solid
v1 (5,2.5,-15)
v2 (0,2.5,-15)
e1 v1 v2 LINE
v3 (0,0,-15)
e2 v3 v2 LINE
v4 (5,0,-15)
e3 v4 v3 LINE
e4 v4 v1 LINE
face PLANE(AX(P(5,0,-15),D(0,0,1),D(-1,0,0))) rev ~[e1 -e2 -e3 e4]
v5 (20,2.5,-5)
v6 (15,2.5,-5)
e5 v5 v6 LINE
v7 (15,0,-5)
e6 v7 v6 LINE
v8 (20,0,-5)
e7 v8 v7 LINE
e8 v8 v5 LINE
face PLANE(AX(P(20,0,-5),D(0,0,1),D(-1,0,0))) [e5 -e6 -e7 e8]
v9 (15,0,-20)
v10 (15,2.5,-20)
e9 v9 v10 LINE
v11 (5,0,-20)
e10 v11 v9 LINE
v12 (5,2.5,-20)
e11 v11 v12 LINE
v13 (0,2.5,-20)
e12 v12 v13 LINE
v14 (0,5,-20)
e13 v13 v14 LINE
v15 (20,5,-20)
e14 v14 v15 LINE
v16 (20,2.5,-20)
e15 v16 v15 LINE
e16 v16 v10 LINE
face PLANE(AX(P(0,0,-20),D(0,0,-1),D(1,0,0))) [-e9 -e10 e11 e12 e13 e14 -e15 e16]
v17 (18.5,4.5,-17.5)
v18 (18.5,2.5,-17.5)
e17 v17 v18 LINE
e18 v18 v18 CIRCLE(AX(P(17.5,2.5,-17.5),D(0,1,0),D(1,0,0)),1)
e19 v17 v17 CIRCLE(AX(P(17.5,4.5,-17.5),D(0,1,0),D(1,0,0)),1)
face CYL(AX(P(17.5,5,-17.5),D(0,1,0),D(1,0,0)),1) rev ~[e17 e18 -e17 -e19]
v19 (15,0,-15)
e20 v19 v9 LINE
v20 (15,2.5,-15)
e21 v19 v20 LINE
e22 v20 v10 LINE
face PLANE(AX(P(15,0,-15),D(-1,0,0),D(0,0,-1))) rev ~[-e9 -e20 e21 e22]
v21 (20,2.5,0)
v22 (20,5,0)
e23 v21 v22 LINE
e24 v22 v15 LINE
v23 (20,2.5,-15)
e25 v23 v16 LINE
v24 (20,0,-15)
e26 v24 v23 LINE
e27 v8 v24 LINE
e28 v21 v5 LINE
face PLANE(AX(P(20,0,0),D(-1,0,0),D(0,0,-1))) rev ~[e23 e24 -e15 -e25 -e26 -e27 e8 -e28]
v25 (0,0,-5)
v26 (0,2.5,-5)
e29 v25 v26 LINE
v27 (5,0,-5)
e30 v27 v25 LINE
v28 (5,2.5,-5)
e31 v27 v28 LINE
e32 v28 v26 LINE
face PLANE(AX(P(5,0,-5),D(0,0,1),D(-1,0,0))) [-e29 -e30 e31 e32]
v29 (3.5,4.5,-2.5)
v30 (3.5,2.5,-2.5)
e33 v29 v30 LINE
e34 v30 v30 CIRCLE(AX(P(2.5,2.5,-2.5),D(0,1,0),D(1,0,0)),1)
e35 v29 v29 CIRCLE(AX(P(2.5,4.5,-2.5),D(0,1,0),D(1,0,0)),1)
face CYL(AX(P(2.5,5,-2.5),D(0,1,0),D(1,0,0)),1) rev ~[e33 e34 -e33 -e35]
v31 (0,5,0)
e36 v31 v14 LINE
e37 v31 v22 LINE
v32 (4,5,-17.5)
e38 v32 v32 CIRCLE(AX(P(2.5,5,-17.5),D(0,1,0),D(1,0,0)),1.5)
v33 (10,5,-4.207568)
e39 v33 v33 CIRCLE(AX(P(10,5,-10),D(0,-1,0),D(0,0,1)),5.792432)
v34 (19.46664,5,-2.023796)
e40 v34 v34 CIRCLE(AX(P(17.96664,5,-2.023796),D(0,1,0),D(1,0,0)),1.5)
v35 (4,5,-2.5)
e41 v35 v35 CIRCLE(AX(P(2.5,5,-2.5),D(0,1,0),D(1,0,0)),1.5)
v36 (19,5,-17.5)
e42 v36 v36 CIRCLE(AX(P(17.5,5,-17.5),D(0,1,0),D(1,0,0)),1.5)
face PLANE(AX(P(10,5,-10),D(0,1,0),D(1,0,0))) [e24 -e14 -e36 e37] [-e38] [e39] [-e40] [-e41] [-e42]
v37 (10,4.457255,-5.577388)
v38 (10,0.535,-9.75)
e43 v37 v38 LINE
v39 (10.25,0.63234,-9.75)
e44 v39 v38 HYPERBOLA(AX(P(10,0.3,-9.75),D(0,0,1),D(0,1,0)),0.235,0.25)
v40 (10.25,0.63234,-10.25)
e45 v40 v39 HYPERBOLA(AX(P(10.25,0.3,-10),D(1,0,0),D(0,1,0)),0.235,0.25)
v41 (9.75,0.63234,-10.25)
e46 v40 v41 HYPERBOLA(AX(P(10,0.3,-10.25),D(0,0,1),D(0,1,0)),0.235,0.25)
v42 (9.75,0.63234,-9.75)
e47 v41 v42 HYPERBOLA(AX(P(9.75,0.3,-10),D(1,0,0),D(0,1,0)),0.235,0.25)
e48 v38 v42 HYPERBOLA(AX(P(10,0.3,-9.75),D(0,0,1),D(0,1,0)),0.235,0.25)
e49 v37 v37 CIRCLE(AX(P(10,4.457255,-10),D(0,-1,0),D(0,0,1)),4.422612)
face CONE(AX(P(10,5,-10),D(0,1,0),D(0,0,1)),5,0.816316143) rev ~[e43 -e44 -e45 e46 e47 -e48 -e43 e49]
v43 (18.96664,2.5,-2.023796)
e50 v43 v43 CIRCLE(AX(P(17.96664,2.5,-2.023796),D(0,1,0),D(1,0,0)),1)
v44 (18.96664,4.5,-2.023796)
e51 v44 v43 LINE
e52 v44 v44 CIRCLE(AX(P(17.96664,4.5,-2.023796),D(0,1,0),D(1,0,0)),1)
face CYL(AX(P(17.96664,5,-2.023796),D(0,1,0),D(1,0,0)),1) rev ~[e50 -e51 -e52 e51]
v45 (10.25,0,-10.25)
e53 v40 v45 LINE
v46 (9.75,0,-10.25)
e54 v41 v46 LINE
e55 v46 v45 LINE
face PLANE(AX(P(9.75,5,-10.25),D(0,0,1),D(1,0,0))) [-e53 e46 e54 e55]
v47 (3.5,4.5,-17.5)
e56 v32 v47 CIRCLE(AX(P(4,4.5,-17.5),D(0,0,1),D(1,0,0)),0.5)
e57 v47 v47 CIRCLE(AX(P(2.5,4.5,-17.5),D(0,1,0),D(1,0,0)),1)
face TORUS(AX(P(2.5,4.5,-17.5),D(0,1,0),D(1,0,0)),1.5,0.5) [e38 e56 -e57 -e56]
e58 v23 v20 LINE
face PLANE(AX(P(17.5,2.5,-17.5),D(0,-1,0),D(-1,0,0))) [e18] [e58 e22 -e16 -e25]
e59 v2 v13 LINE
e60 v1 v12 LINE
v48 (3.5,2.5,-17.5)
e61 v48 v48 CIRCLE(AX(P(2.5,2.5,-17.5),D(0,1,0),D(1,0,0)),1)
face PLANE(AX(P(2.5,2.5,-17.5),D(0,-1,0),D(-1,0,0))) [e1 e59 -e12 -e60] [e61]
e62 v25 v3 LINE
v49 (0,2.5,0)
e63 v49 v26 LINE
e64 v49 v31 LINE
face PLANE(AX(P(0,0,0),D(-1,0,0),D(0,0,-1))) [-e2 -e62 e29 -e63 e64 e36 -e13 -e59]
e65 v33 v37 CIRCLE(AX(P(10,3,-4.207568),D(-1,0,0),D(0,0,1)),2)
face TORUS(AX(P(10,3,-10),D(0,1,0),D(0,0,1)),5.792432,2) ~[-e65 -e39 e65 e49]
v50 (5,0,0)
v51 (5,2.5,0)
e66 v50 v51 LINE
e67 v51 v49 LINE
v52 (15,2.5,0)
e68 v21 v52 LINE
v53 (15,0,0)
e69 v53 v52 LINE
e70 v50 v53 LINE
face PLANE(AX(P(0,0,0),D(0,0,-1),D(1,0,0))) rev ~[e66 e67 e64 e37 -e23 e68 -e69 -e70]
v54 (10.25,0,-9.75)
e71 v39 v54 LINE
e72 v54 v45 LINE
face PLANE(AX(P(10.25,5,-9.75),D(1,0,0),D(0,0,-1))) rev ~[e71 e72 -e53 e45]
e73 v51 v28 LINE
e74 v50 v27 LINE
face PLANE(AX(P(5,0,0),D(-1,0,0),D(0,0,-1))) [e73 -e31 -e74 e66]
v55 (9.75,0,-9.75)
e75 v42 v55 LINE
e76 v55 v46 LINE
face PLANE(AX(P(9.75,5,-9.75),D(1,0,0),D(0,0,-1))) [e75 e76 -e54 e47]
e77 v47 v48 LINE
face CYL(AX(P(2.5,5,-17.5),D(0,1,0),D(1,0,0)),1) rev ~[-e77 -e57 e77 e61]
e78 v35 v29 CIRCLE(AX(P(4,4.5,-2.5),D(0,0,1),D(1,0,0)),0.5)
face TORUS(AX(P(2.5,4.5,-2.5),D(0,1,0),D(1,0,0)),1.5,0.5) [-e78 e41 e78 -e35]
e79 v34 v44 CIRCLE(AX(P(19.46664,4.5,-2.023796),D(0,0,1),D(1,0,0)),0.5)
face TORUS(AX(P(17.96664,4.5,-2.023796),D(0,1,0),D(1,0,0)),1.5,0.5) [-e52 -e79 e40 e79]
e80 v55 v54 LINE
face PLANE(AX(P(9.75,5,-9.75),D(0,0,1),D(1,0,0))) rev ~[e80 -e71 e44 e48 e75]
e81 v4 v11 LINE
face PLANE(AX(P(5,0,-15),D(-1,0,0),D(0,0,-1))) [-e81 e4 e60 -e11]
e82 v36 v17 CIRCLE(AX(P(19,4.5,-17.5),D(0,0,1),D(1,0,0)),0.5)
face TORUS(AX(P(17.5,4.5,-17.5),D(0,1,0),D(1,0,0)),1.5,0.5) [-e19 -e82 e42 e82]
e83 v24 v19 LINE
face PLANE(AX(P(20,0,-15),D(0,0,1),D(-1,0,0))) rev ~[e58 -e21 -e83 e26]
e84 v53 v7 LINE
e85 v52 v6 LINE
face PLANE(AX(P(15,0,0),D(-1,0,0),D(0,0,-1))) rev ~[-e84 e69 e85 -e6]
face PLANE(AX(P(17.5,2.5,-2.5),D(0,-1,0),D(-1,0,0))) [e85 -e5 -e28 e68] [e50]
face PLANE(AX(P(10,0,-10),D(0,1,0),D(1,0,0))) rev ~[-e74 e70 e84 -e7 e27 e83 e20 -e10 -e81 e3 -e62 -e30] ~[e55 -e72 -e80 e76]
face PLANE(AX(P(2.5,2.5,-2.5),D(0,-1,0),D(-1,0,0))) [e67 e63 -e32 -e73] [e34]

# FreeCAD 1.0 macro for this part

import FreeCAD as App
import Part
import Sketcher
from FreeCAD import Vector


def edges_at(feature, points):
    """Names of the edges that pass closest to the given points."""
    edges = feature.Shape.Edges
    near = lambda p: min(range(len(edges)), key=lambda i: edges[i].distToShape(Part.Vertex(*p))[0])
    return sorted({f"Edge{near(p) + 1}" for p in points})

doc = App.newDocument("Part")
body = doc.addObject("PartDesign::Body", "Body")

# Sketch on XZ plane
sketch1 = body.newObject("Sketcher::SketchObject", "Sketch")
sketch1.AttachmentSupport = (doc.getObject("XZ_Plane"), [""])
sketch1.MapMode = "FlatFace"
sketch1.addGeometry(Part.LineSegment(Vector(0, -20, 0), Vector(0, 0, 0)), False)
sketch1.addGeometry(Part.LineSegment(Vector(0, 0, 0), Vector(20, 0, 0)), False)
sketch1.addGeometry(Part.LineSegment(Vector(20, 0, 0), Vector(20, -20, 0)), False)
sketch1.addGeometry(Part.LineSegment(Vector(20, -20, 0), Vector(0, -20, 0)), False)
sketch1.addConstraint(Sketcher.Constraint("Coincident", 0, 2, 1, 1))
sketch1.addConstraint(Sketcher.Constraint("Coincident", 1, 2, 2, 1))
sketch1.addConstraint(Sketcher.Constraint("Coincident", 2, 2, 3, 1))
sketch1.addConstraint(Sketcher.Constraint("Coincident", 3, 2, 0, 1))
sketch1.addConstraint(Sketcher.Constraint("Vertical", 0))
sketch1.addConstraint(Sketcher.Constraint("Horizontal", 1))
sketch1.addConstraint(Sketcher.Constraint("Vertical", 2))
sketch1.addConstraint(Sketcher.Constraint("Horizontal", 3))
sketch1.addConstraint(Sketcher.Constraint("Coincident", 0, 2, -1, 1))
sketch1.addConstraint(Sketcher.Constraint("Equal", 3, 0))
sketch1.addConstraint(Sketcher.Constraint("DistanceX", 1, 1, 1, 2, 20.0))
pad1 = body.newObject("PartDesign::Pad", "Pad")
pad1.Profile = sketch1
pad1.Length = 5
pad1.Reversed = True

# Sketch on YZ plane
sketch2 = body.newObject("Sketcher::SketchObject", "Sketch001")
sketch2.AttachmentSupport = (doc.getObject("YZ_Plane"), [""])
sketch2.MapMode = "FlatFace"
sketch2.AttachmentOffset = App.Placement(Vector(0, 0, 10), App.Rotation())
sketch2.addGeometry(Part.LineSegment(Vector(0.3, -10, 0), Vector(5, -10, 0)), False)
sketch2.addGeometry(Part.LineSegment(Vector(5, -10, 0), Vector(5, -5, 0)), False)
sketch2.addGeometry(Part.LineSegment(Vector(5, -5, 0), Vector(0.3, -10, 0)), False)
sketch2.addGeometry(Part.LineSegment(Vector(5, -10, 0), Vector(0.3, -10, 0)), True)  # axis
sketch2.addConstraint(Sketcher.Constraint("Coincident", 0, 2, 1, 1))
sketch2.addConstraint(Sketcher.Constraint("Coincident", 1, 2, 2, 1))
sketch2.addConstraint(Sketcher.Constraint("Coincident", 2, 2, 0, 1))
sketch2.addConstraint(Sketcher.Constraint("Horizontal", 0))
sketch2.addConstraint(Sketcher.Constraint("Vertical", 1))
sketch2.addConstraint(Sketcher.Constraint("Horizontal", 3))
sketch2.addConstraint(Sketcher.Constraint("Coincident", 3, 1, 0, 2))
sketch2.addConstraint(Sketcher.Constraint("Equal", 0, 3))
sketch2.addConstraint(Sketcher.Constraint("DistanceY", 1, 1, 1, 2, 5.0))
sketch2.addConstraint(Sketcher.Constraint("DistanceX", 0, 1, 0, 2, 4.7))
sketch2.addConstraint(Sketcher.Constraint("DistanceX", -1, 1, 0, 2, 5.0))
sketch2.addConstraint(Sketcher.Constraint("DistanceY", 0, 2, -1, 1, 10.0))
groove = body.newObject("PartDesign::Groove", "Groove")
groove.Profile = sketch2
groove.ReferenceAxis = (sketch2, ["Axis0"])
groove.Angle = 360

# Sketch on XZ plane
sketch3 = body.newObject("Sketcher::SketchObject", "Sketch002")
sketch3.AttachmentSupport = (doc.getObject("XZ_Plane"), [""])
sketch3.MapMode = "FlatFace"
sketch3.AttachmentOffset = App.Placement(Vector(0, 0, -5), App.Rotation())
sketch3.addGeometry(Part.LineSegment(Vector(9.75, -10.25, 0), Vector(9.75, -9.75, 0)), False)
sketch3.addGeometry(Part.LineSegment(Vector(9.75, -9.75, 0), Vector(10.25, -9.75, 0)), False)
sketch3.addGeometry(Part.LineSegment(Vector(10.25, -9.75, 0), Vector(10.25, -10.25, 0)), False)
sketch3.addGeometry(Part.LineSegment(Vector(10.25, -10.25, 0), Vector(9.75, -10.25, 0)), False)
sketch3.addConstraint(Sketcher.Constraint("Coincident", 0, 2, 1, 1))
sketch3.addConstraint(Sketcher.Constraint("Coincident", 1, 2, 2, 1))
sketch3.addConstraint(Sketcher.Constraint("Coincident", 2, 2, 3, 1))
sketch3.addConstraint(Sketcher.Constraint("Coincident", 3, 2, 0, 1))
sketch3.addConstraint(Sketcher.Constraint("Vertical", 0))
sketch3.addConstraint(Sketcher.Constraint("Horizontal", 1))
sketch3.addConstraint(Sketcher.Constraint("Vertical", 2))
sketch3.addConstraint(Sketcher.Constraint("Horizontal", 3))
sketch3.addConstraint(Sketcher.Constraint("Equal", 3, 0))
sketch3.addConstraint(Sketcher.Constraint("DistanceX", 1, 1, 1, 2, 0.5))
sketch3.addConstraint(Sketcher.Constraint("DistanceX", -1, 1, 0, 2, 9.75))
sketch3.addConstraint(Sketcher.Constraint("DistanceY", 0, 2, -1, 1, 9.75))
pocket1 = body.newObject("PartDesign::Pocket", "Pocket")
pocket1.Profile = sketch3
pocket1.Length = 7
pocket1.Reversed = True
doc.recompute()

fillet = body.newObject("PartDesign::Fillet", "Fillet")
fillet.Base = (pocket1, edges_at(pocket1, [(10, 5, -15)]))
fillet.Radius = 2

# Sketch on XZ plane
sketch4 = body.newObject("Sketcher::SketchObject", "Sketch003")
sketch4.AttachmentSupport = (doc.getObject("XZ_Plane"), [""])
sketch4.MapMode = "FlatFace"
sketch4.addGeometry(Part.LineSegment(Vector(20, -20, 0), Vector(20, -15, 0)), False)
sketch4.addGeometry(Part.LineSegment(Vector(20, -15, 0), Vector(15, -15, 0)), False)
sketch4.addGeometry(Part.LineSegment(Vector(15, -15, 0), Vector(15, -20, 0)), False)
sketch4.addGeometry(Part.LineSegment(Vector(15, -20, 0), Vector(20, -20, 0)), False)
sketch4.addGeometry(Part.LineSegment(Vector(5, -20, 0), Vector(5, -15, 0)), False)
sketch4.addGeometry(Part.LineSegment(Vector(5, -15, 0), Vector(0, -15, 0)), False)
sketch4.addGeometry(Part.LineSegment(Vector(0, -15, 0), Vector(0, -20, 0)), False)
sketch4.addGeometry(Part.LineSegment(Vector(0, -20, 0), Vector(5, -20, 0)), False)
sketch4.addGeometry(Part.LineSegment(Vector(20, -5, 0), Vector(20, 0, 0)), False)
sketch4.addGeometry(Part.LineSegment(Vector(20, 0, 0), Vector(15, 0, 0)), False)
sketch4.addGeometry(Part.LineSegment(Vector(15, 0, 0), Vector(15, -5, 0)), False)
sketch4.addGeometry(Part.LineSegment(Vector(15, -5, 0), Vector(20, -5, 0)), False)
sketch4.addGeometry(Part.LineSegment(Vector(5, -5, 0), Vector(5, 0, 0)), False)
sketch4.addGeometry(Part.LineSegment(Vector(5, 0, 0), Vector(0, 0, 0)), False)
sketch4.addGeometry(Part.LineSegment(Vector(0, 0, 0), Vector(0, -5, 0)), False)
sketch4.addGeometry(Part.LineSegment(Vector(0, -5, 0), Vector(5, -5, 0)), False)
sketch4.addConstraint(Sketcher.Constraint("Coincident", 0, 2, 1, 1))
sketch4.addConstraint(Sketcher.Constraint("Coincident", 1, 2, 2, 1))
sketch4.addConstraint(Sketcher.Constraint("Coincident", 2, 2, 3, 1))
sketch4.addConstraint(Sketcher.Constraint("Coincident", 3, 2, 0, 1))
sketch4.addConstraint(Sketcher.Constraint("Coincident", 4, 2, 5, 1))
sketch4.addConstraint(Sketcher.Constraint("Coincident", 5, 2, 6, 1))
sketch4.addConstraint(Sketcher.Constraint("Coincident", 6, 2, 7, 1))
sketch4.addConstraint(Sketcher.Constraint("Coincident", 7, 2, 4, 1))
sketch4.addConstraint(Sketcher.Constraint("Coincident", 8, 2, 9, 1))
sketch4.addConstraint(Sketcher.Constraint("Coincident", 9, 2, 10, 1))
sketch4.addConstraint(Sketcher.Constraint("Coincident", 10, 2, 11, 1))
sketch4.addConstraint(Sketcher.Constraint("Coincident", 11, 2, 8, 1))
sketch4.addConstraint(Sketcher.Constraint("Coincident", 12, 2, 13, 1))
sketch4.addConstraint(Sketcher.Constraint("Coincident", 13, 2, 14, 1))
sketch4.addConstraint(Sketcher.Constraint("Coincident", 14, 2, 15, 1))
sketch4.addConstraint(Sketcher.Constraint("Coincident", 15, 2, 12, 1))
sketch4.addConstraint(Sketcher.Constraint("Vertical", 0))
sketch4.addConstraint(Sketcher.Constraint("Horizontal", 1))
sketch4.addConstraint(Sketcher.Constraint("Vertical", 2))
sketch4.addConstraint(Sketcher.Constraint("Horizontal", 3))
sketch4.addConstraint(Sketcher.Constraint("Vertical", 4))
sketch4.addConstraint(Sketcher.Constraint("Horizontal", 5))
sketch4.addConstraint(Sketcher.Constraint("Vertical", 6))
sketch4.addConstraint(Sketcher.Constraint("Horizontal", 7))
sketch4.addConstraint(Sketcher.Constraint("Vertical", 8))
sketch4.addConstraint(Sketcher.Constraint("Horizontal", 9))
sketch4.addConstraint(Sketcher.Constraint("Vertical", 10))
sketch4.addConstraint(Sketcher.Constraint("Horizontal", 11))
sketch4.addConstraint(Sketcher.Constraint("Vertical", 12))
sketch4.addConstraint(Sketcher.Constraint("Horizontal", 13))
sketch4.addConstraint(Sketcher.Constraint("Vertical", 14))
sketch4.addConstraint(Sketcher.Constraint("Horizontal", 15))
sketch4.addConstraint(Sketcher.Constraint("Coincident", 13, 2, -1, 1))
sketch4.addConstraint(Sketcher.Constraint("PointOnObject", 5, 2, -2))
sketch4.addConstraint(Sketcher.Constraint("PointOnObject", 8, 2, -1))
sketch4.addConstraint(Sketcher.Constraint("Horizontal", 1, 2, 4, 2))
sketch4.addConstraint(Sketcher.Constraint("Horizontal", 3, 2, 6, 2))
sketch4.addConstraint(Sketcher.Constraint("Horizontal", 11, 2, 14, 2))
sketch4.addConstraint(Sketcher.Constraint("Vertical", 3, 2, 8, 2))
sketch4.addConstraint(Sketcher.Constraint("Vertical", 2, 2, 9, 2))
sketch4.addConstraint(Sketcher.Constraint("Vertical", 7, 2, 12, 2))
sketch4.addConstraint(Sketcher.Constraint("Equal", 3, 5))
sketch4.addConstraint(Sketcher.Constraint("Equal", 15, 0))
sketch4.addConstraint(Sketcher.Constraint("Equal", 6, 8))
sketch4.addConstraint(Sketcher.Constraint("DistanceX", 1, 2, 1, 1, 5.0))
sketch4.addConstraint(Sketcher.Constraint("DistanceX", -1, 1, 0, 2, 20.0))
sketch4.addConstraint(Sketcher.Constraint("DistanceY", 0, 2, -1, 1, 15.0))
pocket2 = body.newObject("PartDesign::Pocket", "Pocket001")
pocket2.Profile = sketch4
pocket2.Length = 2.5

# Sketch on XZ plane
sketch5 = body.newObject("Sketcher::SketchObject", "Sketch004")
sketch5.AttachmentSupport = (doc.getObject("XZ_Plane"), [""])
sketch5.MapMode = "FlatFace"
sketch5.AttachmentOffset = App.Placement(Vector(0, 0, -5), App.Rotation())
sketch5.addGeometry(Part.Circle(Vector(17.96664, -2.023796, 0), Vector(0, 0, 1), 1), False)
sketch5.addGeometry(Part.Circle(Vector(17.5, -17.5, 0), Vector(0, 0, 1), 1), False)
sketch5.addGeometry(Part.Circle(Vector(2.5, -17.5, 0), Vector(0, 0, 1), 1), False)
sketch5.addGeometry(Part.Circle(Vector(2.5, -2.5, 0), Vector(0, 0, 1), 1), False)
sketch5.addConstraint(Sketcher.Constraint("Equal", 0, 1))
sketch5.addConstraint(Sketcher.Constraint("Equal", 1, 2))
sketch5.addConstraint(Sketcher.Constraint("Equal", 2, 3))
sketch5.addConstraint(Sketcher.Constraint("Horizontal", 1, 3, 2, 3))
sketch5.addConstraint(Sketcher.Constraint("Vertical", 2, 3, 3, 3))
sketch5.addConstraint(Sketcher.Constraint("Diameter", 0, 2.0))
sketch5.addConstraint(Sketcher.Constraint("DistanceX", 2, 3, 1, 3, 15.0))
sketch5.addConstraint(Sketcher.Constraint("DistanceY", 2, 3, 3, 3, 15.0))
sketch5.addConstraint(Sketcher.Constraint("DistanceX", -1, 1, 1, 3, 17.5))
sketch5.addConstraint(Sketcher.Constraint("DistanceY", 1, 3, -1, 1, 17.5))
sketch5.addConstraint(Sketcher.Constraint("DistanceX", -1, 1, 0, 3, 17.96664))
sketch5.addConstraint(Sketcher.Constraint("DistanceY", 0, 3, -1, 1, 2.023796))
pocket3 = body.newObject("PartDesign::Pocket", "Pocket002")
pocket3.Profile = sketch5
pocket3.Length = 3
pocket3.Reversed = True
doc.recompute()

fillet2 = body.newObject("PartDesign::Fillet", "Fillet001")
fillet2.Base = (pocket3, edges_at(pocket3, [
    (16.5, 5, -17.5),
    (1.5, 5, -17.5),
    (1.5, 5, -2.5),
    (16.967, 5, -2.024),
]))
fillet2.Radius = 0.5

doc.recompute()
